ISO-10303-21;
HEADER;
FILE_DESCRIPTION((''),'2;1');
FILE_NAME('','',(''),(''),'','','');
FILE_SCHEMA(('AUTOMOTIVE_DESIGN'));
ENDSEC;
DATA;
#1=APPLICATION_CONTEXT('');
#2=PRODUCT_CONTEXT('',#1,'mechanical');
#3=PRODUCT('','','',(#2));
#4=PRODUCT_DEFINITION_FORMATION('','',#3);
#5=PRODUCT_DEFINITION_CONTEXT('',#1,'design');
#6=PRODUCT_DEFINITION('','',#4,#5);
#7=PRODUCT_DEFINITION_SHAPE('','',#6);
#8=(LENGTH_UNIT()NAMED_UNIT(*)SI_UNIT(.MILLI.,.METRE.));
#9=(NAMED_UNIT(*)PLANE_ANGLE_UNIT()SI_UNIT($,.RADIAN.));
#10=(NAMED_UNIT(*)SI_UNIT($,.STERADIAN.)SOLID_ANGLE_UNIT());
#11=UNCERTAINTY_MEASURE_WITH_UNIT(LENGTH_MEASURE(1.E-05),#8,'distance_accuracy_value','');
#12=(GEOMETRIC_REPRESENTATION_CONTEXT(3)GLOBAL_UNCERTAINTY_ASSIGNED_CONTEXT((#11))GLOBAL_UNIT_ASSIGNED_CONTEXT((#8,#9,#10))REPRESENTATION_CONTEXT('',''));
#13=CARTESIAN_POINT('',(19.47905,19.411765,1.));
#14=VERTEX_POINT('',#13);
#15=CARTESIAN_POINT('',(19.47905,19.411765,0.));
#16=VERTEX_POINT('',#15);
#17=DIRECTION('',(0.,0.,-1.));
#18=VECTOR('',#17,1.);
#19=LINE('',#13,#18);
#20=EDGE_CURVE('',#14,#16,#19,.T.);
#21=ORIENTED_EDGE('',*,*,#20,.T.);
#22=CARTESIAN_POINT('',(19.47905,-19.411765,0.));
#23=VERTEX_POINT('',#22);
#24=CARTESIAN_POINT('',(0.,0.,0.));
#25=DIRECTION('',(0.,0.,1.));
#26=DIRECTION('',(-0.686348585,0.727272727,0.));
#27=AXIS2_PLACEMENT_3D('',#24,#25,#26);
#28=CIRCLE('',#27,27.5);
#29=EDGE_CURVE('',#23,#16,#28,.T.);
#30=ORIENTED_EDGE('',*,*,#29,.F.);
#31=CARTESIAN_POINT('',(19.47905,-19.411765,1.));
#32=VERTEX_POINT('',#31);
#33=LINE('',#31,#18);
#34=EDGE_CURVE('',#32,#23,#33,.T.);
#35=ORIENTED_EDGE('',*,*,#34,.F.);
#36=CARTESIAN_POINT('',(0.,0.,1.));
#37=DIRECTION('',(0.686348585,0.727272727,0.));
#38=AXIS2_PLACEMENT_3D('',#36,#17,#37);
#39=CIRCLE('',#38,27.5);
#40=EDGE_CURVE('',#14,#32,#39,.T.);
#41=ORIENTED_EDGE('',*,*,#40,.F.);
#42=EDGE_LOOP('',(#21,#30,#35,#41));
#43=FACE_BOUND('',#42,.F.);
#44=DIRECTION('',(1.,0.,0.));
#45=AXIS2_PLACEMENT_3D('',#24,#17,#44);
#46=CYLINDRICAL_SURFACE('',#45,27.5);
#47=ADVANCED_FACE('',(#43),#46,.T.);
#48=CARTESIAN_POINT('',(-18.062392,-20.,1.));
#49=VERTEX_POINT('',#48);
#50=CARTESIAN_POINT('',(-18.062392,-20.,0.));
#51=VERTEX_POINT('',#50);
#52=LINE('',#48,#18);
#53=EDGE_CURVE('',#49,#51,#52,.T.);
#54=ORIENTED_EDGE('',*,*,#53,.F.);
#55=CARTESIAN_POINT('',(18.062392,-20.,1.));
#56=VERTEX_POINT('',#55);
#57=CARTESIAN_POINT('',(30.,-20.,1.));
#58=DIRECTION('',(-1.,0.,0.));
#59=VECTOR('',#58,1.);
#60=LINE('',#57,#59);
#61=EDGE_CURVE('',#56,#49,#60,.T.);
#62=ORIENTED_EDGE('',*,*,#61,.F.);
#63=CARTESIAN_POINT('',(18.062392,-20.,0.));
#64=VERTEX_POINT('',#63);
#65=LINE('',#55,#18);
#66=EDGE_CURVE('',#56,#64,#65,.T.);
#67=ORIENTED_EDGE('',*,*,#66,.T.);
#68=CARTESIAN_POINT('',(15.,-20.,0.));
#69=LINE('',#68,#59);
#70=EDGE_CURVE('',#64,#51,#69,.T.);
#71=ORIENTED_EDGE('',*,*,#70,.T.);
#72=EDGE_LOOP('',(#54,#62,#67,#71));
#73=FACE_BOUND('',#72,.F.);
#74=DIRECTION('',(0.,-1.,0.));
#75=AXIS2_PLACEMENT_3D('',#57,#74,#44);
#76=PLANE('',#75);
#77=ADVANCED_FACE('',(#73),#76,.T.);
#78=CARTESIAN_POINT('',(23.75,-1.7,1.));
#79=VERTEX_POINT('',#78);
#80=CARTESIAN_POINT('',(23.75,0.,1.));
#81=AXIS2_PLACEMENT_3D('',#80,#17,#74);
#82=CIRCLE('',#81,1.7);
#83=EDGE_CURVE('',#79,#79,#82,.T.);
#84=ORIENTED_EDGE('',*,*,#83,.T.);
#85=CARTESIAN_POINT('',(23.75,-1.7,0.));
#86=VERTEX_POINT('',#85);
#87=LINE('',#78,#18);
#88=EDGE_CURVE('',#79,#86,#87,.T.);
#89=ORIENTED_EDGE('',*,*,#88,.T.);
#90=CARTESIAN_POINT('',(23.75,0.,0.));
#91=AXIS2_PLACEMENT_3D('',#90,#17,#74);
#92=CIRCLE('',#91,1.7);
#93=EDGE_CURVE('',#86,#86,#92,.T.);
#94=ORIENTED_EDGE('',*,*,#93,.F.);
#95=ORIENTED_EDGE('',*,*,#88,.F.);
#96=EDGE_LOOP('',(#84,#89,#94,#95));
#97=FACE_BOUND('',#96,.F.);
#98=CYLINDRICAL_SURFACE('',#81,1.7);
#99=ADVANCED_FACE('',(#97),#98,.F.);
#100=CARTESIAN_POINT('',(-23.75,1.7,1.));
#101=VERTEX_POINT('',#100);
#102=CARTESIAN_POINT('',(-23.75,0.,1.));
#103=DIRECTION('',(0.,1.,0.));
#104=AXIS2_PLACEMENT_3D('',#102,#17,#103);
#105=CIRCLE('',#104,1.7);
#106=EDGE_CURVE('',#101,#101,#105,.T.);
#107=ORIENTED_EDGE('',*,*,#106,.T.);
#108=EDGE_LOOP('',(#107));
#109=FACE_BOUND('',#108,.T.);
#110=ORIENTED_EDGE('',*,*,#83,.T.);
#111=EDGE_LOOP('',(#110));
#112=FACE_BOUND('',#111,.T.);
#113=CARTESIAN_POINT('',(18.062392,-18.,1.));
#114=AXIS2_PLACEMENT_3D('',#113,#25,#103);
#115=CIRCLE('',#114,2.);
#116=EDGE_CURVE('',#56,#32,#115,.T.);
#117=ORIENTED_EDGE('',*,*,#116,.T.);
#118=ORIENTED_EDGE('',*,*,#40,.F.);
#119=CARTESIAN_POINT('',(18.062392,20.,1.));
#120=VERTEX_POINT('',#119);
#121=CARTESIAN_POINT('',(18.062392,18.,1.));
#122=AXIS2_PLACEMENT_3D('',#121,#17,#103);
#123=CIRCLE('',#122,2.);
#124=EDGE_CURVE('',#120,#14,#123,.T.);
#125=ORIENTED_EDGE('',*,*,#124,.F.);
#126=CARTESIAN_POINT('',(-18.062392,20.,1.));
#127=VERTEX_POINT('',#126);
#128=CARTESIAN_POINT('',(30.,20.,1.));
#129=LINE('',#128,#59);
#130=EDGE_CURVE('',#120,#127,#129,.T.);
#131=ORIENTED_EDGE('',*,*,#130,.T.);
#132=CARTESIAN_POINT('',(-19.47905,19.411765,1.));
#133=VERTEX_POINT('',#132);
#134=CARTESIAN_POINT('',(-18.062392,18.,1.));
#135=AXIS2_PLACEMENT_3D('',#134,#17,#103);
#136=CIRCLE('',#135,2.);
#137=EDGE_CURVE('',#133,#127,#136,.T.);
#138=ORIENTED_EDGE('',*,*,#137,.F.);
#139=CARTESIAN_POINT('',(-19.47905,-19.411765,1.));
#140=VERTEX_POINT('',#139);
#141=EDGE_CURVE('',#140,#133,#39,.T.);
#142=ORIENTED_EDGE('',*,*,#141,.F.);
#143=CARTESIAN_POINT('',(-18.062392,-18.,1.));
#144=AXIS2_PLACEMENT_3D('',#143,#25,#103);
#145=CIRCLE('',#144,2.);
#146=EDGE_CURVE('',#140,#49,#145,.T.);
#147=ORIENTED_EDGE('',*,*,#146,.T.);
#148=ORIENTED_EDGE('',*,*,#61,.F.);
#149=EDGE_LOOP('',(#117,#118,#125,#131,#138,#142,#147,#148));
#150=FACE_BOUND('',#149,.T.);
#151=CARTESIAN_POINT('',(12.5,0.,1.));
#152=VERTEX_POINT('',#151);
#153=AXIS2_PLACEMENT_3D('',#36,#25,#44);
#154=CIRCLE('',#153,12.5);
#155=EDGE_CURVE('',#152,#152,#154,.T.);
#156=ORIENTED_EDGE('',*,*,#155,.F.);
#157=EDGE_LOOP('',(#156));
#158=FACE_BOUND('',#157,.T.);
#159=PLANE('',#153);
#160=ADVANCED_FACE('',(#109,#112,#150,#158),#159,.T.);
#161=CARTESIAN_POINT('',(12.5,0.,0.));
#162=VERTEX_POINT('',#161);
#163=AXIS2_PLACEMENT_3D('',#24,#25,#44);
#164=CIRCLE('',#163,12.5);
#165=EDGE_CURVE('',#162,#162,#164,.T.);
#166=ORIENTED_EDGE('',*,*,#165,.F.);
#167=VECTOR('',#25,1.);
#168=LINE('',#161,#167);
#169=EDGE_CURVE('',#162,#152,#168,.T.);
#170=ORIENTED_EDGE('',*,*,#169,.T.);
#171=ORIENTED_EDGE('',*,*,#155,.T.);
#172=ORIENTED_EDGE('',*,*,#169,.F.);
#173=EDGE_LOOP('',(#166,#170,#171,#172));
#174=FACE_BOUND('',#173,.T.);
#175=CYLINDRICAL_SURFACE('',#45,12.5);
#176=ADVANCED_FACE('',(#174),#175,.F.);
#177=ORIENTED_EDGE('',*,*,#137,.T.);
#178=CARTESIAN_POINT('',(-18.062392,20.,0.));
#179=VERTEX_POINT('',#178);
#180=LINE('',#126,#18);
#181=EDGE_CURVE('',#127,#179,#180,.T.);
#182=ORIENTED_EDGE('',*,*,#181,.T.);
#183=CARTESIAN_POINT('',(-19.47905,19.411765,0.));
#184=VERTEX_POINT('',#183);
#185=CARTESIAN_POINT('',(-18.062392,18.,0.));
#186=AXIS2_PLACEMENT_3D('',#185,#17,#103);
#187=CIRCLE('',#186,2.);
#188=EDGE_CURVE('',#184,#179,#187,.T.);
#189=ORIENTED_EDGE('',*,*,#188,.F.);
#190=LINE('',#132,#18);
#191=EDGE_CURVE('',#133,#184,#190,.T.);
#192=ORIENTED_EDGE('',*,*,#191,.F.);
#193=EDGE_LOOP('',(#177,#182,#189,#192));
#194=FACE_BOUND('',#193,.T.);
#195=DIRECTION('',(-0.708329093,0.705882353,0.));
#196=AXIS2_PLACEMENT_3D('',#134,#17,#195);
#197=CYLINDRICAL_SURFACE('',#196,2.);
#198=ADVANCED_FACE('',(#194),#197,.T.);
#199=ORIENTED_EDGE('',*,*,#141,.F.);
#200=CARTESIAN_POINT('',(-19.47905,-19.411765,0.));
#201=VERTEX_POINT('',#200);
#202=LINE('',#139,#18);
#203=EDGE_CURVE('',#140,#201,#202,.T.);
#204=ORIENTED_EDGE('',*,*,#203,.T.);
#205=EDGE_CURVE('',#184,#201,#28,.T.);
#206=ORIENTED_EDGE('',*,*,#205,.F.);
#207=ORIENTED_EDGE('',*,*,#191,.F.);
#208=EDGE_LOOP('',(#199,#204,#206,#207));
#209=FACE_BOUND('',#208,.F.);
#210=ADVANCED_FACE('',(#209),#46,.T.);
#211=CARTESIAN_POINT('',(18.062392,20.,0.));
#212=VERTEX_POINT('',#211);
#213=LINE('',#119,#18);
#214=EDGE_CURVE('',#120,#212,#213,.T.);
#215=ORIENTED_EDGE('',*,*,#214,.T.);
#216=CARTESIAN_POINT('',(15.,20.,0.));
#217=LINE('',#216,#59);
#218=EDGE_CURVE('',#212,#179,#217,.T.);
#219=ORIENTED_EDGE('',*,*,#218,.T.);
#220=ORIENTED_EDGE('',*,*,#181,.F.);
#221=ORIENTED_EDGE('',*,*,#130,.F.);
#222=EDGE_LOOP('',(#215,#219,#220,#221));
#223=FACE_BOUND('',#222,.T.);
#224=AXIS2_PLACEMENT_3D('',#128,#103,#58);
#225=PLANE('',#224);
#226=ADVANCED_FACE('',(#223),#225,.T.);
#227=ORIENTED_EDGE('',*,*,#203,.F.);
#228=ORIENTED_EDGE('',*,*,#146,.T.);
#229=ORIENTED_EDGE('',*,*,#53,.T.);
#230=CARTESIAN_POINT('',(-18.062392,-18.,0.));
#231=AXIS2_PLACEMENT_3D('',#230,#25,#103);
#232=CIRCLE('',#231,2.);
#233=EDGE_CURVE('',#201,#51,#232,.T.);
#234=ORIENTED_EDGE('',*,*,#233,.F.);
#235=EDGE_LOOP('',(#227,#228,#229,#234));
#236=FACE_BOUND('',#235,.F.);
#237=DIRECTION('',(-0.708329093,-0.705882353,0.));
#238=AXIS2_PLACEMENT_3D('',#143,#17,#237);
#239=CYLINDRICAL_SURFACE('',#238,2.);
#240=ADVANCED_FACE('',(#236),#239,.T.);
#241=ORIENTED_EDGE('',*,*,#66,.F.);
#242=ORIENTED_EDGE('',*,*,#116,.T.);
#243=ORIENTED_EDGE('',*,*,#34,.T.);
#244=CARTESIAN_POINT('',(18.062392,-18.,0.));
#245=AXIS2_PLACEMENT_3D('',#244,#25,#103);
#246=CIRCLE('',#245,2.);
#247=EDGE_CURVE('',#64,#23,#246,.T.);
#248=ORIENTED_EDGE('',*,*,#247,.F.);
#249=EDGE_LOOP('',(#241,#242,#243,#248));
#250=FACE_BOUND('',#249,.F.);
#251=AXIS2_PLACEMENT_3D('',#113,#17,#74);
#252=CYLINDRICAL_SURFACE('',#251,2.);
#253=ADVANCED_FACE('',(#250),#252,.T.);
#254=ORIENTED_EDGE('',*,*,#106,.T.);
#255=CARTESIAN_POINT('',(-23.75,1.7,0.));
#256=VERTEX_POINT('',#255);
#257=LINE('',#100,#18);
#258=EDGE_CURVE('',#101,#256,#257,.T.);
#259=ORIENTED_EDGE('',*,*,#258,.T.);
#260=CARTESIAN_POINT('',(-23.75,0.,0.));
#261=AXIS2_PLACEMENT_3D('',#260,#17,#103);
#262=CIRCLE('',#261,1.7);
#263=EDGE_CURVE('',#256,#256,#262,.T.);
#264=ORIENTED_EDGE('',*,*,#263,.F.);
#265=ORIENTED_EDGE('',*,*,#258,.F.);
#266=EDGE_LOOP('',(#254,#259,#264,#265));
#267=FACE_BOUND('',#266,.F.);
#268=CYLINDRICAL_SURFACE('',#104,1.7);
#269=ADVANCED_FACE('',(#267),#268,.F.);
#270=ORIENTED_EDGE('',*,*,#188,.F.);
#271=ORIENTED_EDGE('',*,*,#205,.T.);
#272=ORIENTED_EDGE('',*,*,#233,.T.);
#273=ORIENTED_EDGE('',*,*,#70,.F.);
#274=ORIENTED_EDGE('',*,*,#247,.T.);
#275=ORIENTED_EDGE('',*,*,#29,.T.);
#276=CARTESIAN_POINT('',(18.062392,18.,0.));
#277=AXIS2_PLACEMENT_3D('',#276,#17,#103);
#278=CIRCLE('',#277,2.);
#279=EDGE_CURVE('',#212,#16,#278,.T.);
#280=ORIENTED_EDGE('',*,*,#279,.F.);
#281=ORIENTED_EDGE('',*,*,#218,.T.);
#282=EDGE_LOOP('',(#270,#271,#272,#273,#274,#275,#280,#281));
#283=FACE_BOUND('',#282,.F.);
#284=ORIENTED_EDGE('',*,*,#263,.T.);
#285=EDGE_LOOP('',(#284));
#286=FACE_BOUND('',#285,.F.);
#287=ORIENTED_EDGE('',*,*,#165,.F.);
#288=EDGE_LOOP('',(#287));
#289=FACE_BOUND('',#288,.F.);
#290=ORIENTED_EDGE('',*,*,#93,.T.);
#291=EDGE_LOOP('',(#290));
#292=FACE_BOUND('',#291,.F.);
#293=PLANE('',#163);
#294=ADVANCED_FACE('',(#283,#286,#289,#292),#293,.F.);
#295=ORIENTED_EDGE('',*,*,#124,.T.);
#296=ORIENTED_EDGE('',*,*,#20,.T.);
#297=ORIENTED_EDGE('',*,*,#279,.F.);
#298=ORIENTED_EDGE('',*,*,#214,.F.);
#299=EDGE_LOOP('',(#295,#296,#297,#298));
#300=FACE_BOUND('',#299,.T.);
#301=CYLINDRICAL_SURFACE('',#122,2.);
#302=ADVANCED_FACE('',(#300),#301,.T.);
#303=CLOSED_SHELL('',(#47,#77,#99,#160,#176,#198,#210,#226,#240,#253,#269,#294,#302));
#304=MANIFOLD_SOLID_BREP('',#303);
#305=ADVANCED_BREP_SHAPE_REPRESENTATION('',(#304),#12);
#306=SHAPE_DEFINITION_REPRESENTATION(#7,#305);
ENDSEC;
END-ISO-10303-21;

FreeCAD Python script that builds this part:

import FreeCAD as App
import Part
import Sketcher


def edges_at(feature, points):
    """Names of the edges that pass closest to the given points."""
    edges = feature.Shape.Edges
    near = lambda p: min(range(len(edges)), key=lambda i: edges[i].distToShape(Part.Vertex(*p))[0])
    return sorted({f"Edge{near(p) + 1}" for p in points})


def add_polygon(sketch, points):
    """Adds a closed chain of lines whose ends are joined by coincident constraints."""
    first, n = sketch.GeometryCount, len(points)
    for a, b in zip(points, points[1:] + points[:1]):
        sketch.addGeometry(Part.LineSegment(App.Vector(*a, 0), App.Vector(*b, 0)), False)
    for i in range(n):
        sketch.addConstraint(Sketcher.Constraint("Coincident", first + i, 2, first + (i + 1) % n, 1))

doc = App.newDocument("Part")
body = doc.addObject("PartDesign::Body", "Body")

sketch1 = body.newObject("Sketcher::SketchObject", "Sketch")
sketch1.AttachmentSupport = (doc.getObject("XY_Plane"), [""])
sketch1.MapMode = "FlatFace"
sketch1.addGeometry([
    Part.Circle(App.Vector(0, 0, 0), App.Vector(0, 0, 1), 28),
    Part.Circle(App.Vector(0, 0, 0), App.Vector(0, 0, 1), 12),
], False)
sketch1.addConstraint([
    Sketcher.Constraint("Coincident", 0, 3, -1, 1),
    Sketcher.Constraint("Coincident", 1, 3, -1, 1),
    Sketcher.Constraint("Diameter", 0, 55.0),
    Sketcher.Constraint("Diameter", 1, 25.0),
])
pad1 = body.newObject("PartDesign::Pad", "Pad")
pad1.Profile = sketch1
pad1.Length = 1

sketch2 = body.newObject("Sketcher::SketchObject", "Sketch001")
sketch2.AttachmentSupport = (doc.getObject("XY_Plane"), [""])
sketch2.MapMode = "FlatFace"
sketch2.AttachmentOffset = App.Placement(App.Vector(0, 0, 1), App.Rotation())
sketch2.addGeometry(Part.Circle(App.Vector(23.8, 0, 0), App.Vector(0, 0, 1), 1.7), False)
sketch2.addConstraint([
    Sketcher.Constraint("PointOnObject", 0, 3, -1),
    Sketcher.Constraint("Diameter", 0, 3.4),
    Sketcher.Constraint("DistanceX", -1, 1, 0, 3, 23.75),
])
doc.recompute()
hole = body.newObject("PartDesign::Hole", "Hole")
hole.Profile = sketch2
hole.ThreadType = "None"
hole.Diameter = 3.4
hole.DepthType = "ThroughAll"
doc.recompute()

polarpattern = body.newObject("PartDesign::PolarPattern", "PolarPattern")
polarpattern.Originals = [hole]
polarpattern.Axis = (doc.getObject("Z_Axis"), [""])
polarpattern.Angle = 360
polarpattern.Occurrences = 4
body.Tip = polarpattern

sketch3 = body.newObject("Sketcher::SketchObject", "Sketch002")
sketch3.AttachmentSupport = (doc.getObject("XY_Plane"), [""])
sketch3.MapMode = "FlatFace"
sketch3.AttachmentOffset = App.Placement(App.Vector(0, 0, 1), App.Rotation())
add_polygon(sketch3, [(30, 30), (-30, 30), (-30, 20), (30, 20)])
sketch3.addConstraint([
    Sketcher.Constraint("Horizontal", 0),
    Sketcher.Constraint("Vertical", 1),
    Sketcher.Constraint("Horizontal", 2),
    Sketcher.Constraint("Vertical", 3),
    Sketcher.Constraint("DistanceX", 0, 2, 0, 1, 60.0),
    Sketcher.Constraint("DistanceY", 1, 2, 1, 1, 10.0),
    Sketcher.Constraint("DistanceY", -1, 1, 1, 2, 20.0),
    Sketcher.Constraint("DistanceX", 0, 2, -1, 1, 30.0),
])
pocket1 = body.newObject("PartDesign::Pocket", "Pocket")
pocket1.Profile = sketch3
pocket1.Type = "ThroughAll"
doc.recompute()

mirrored = body.newObject("PartDesign::Mirrored", "Mirrored")
mirrored.Originals = [pocket1]
mirrored.MirrorPlane = (doc.getObject("XZ_Plane"), [""])
body.Tip = mirrored
doc.recompute()

fillet = body.newObject("PartDesign::Fillet", "Fillet")
fillet.Base = (mirrored, edges_at(mirrored, [
    (-18.875, 20, 0.5),
    (18.875, 20, 0.5),
    (-18.875, -20, 0.5),
    (18.875, -20, 0.5),
]))
fillet.Radius = 2

doc.recompute()
